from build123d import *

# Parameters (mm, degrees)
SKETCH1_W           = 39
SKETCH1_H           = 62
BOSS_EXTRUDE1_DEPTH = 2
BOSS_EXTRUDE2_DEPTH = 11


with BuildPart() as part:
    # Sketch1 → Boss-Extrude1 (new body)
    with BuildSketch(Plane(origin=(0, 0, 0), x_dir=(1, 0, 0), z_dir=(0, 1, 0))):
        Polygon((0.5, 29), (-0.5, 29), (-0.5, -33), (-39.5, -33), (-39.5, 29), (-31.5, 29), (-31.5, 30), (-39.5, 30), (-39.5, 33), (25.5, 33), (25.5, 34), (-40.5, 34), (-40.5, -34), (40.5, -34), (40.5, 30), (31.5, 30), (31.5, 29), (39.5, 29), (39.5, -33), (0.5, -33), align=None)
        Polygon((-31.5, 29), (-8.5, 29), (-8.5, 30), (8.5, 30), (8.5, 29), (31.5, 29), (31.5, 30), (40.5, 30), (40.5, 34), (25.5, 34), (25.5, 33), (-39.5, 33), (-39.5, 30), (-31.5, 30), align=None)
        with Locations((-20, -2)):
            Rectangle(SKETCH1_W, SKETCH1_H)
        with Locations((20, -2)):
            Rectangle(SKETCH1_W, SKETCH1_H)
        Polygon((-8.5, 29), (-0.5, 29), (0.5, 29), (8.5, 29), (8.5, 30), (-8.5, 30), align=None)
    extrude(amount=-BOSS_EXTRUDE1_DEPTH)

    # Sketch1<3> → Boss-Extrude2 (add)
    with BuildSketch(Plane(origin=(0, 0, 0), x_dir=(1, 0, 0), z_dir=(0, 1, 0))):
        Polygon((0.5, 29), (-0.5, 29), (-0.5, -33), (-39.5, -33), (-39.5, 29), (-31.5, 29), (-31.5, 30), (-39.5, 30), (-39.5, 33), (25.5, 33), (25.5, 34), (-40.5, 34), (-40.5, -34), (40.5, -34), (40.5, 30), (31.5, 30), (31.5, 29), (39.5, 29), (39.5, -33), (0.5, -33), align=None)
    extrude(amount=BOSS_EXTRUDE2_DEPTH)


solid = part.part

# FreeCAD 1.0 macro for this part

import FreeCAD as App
import Part
import Sketcher

V = App.Vector

doc = App.newDocument("Part")
body = doc.addObject("PartDesign::Body", "Body")

# Sketch on XZ plane
sketch1 = body.newObject("Sketcher::SketchObject", "Sketch")
sketch1.AttachmentSupport = (doc.getObject("XZ_Plane"), [""])
sketch1.MapMode = "FlatFace"
sketch1.addGeometry([
    Part.LineSegment(V(-40.5, -34, 0), V(-40.5, 34, 0)),
    Part.LineSegment(V(-40.5, 34, 0), V(40.5, 34, 0)),
    Part.LineSegment(V(40.5, 34, 0), V(40.5, -34, 0)),
    Part.LineSegment(V(40.5, -34, 0), V(-40.5, -34, 0)),
], False)
sketch1.addConstraint([
    Sketcher.Constraint("Coincident", 0, 2, 1, 1),
    Sketcher.Constraint("Coincident", 1, 2, 2, 1),
    Sketcher.Constraint("Coincident", 2, 2, 3, 1),
    Sketcher.Constraint("Coincident", 3, 2, 0, 1),
    Sketcher.Constraint("Vertical", 0),
    Sketcher.Constraint("Horizontal", 1),
    Sketcher.Constraint("Vertical", 2),
    Sketcher.Constraint("Horizontal", 3),
    Sketcher.Constraint("Symmetric", 0, 2, 2, 2, -1, 1),
    Sketcher.Constraint("DistanceX", 1, 1, 1, 2, 81.0),
    Sketcher.Constraint("DistanceY", 0, 1, 0, 2, 68.0),
])
pad1 = body.newObject("PartDesign::Pad", "Pad")
pad1.Profile = sketch1
pad1.Length = 2

# Sketch on XZ plane
sketch2 = body.newObject("Sketcher::SketchObject", "Sketch001")
sketch2.AttachmentSupport = (doc.getObject("XZ_Plane"), [""])
sketch2.MapMode = "FlatFace"
sketch2.addGeometry([
    Part.LineSegment(V(0.5, -29, 0), V(-0.5, -29, 0)),  # 0
    Part.LineSegment(V(-0.5, -29, 0), V(-0.5, 33, 0)),  # 1
    Part.LineSegment(V(-0.5, 33, 0), V(-39.5, 33, 0)),  # 2
    Part.LineSegment(V(-39.5, 33, 0), V(-39.5, -29, 0)),  # 3
    Part.LineSegment(V(-39.5, -29, 0), V(-31.5, -29, 0)),  # 4
    Part.LineSegment(V(-31.5, -29, 0), V(-31.5, -30, 0)),  # 5
    Part.LineSegment(V(-31.5, -30, 0), V(-39.5, -30, 0)),  # 6
    Part.LineSegment(V(-39.5, -30, 0), V(-39.5, -33, 0)),  # 7
    Part.LineSegment(V(-39.5, -33, 0), V(25.5, -33, 0)),  # 8
    Part.LineSegment(V(25.5, -33, 0), V(25.5, -34, 0)),  # 9
    Part.LineSegment(V(25.5, -34, 0), V(-40.5, -34, 0)),  # 10
    Part.LineSegment(V(-40.5, -34, 0), V(-40.5, 34, 0)),  # 11
    Part.LineSegment(V(-40.5, 34, 0), V(40.5, 34, 0)),  # 12
    Part.LineSegment(V(40.5, 34, 0), V(40.5, -30, 0)),  # 13
    Part.LineSegment(V(40.5, -30, 0), V(31.5, -30, 0)),  # 14
    Part.LineSegment(V(31.5, -30, 0), V(31.5, -29, 0)),  # 15
    Part.LineSegment(V(31.5, -29, 0), V(39.5, -29, 0)),  # 16
    Part.LineSegment(V(39.5, -29, 0), V(39.5, 33, 0)),  # 17
    Part.LineSegment(V(39.5, 33, 0), V(0.5, 33, 0)),  # 18
    Part.LineSegment(V(0.5, 33, 0), V(0.5, -29, 0)),  # 19
], False)
sketch2.addConstraint([
    Sketcher.Constraint("Coincident", 0, 2, 1, 1),
    Sketcher.Constraint("Coincident", 1, 2, 2, 1),
    Sketcher.Constraint("Coincident", 2, 2, 3, 1),
    Sketcher.Constraint("Coincident", 3, 2, 4, 1),
    Sketcher.Constraint("Coincident", 4, 2, 5, 1),
    Sketcher.Constraint("Coincident", 5, 2, 6, 1),
    Sketcher.Constraint("Coincident", 6, 2, 7, 1),
    Sketcher.Constraint("Coincident", 7, 2, 8, 1),
    Sketcher.Constraint("Coincident", 8, 2, 9, 1),
    Sketcher.Constraint("Coincident", 9, 2, 10, 1),
    Sketcher.Constraint("Coincident", 10, 2, 11, 1),
    Sketcher.Constraint("Coincident", 11, 2, 12, 1),
    Sketcher.Constraint("Coincident", 12, 2, 13, 1),
    Sketcher.Constraint("Coincident", 13, 2, 14, 1),
    Sketcher.Constraint("Coincident", 14, 2, 15, 1),
    Sketcher.Constraint("Coincident", 15, 2, 16, 1),
    Sketcher.Constraint("Coincident", 16, 2, 17, 1),
    Sketcher.Constraint("Coincident", 17, 2, 18, 1),
    Sketcher.Constraint("Coincident", 18, 2, 19, 1),
    Sketcher.Constraint("Coincident", 19, 2, 0, 1),
    Sketcher.Constraint("Horizontal", 0),
    Sketcher.Constraint("Vertical", 1),
    Sketcher.Constraint("Horizontal", 2),
    Sketcher.Constraint("Vertical", 3),
    Sketcher.Constraint("Horizontal", 4),
    Sketcher.Constraint("Vertical", 5),
    Sketcher.Constraint("Horizontal", 6),
    Sketcher.Constraint("Vertical", 7),
    Sketcher.Constraint("Horizontal", 8),
    Sketcher.Constraint("Vertical", 9),
    Sketcher.Constraint("Horizontal", 10),
    Sketcher.Constraint("Vertical", 11),
    Sketcher.Constraint("Horizontal", 12),
    Sketcher.Constraint("Vertical", 13),
    Sketcher.Constraint("Horizontal", 14),
    Sketcher.Constraint("Vertical", 15),
    Sketcher.Constraint("Horizontal", 16),
    Sketcher.Constraint("Vertical", 17),
    Sketcher.Constraint("Horizontal", 18),
    Sketcher.Constraint("Vertical", 19),
    Sketcher.Constraint("Symmetric", 10, 2, 12, 2, -1, 1),
    Sketcher.Constraint("Symmetric", 7, 2, 17, 2, -1, 1),
    Sketcher.Constraint("Symmetric", 5, 2, 14, 2, -2),
    Sketcher.Constraint("Symmetric", 3, 2, 16, 2, -2),
    Sketcher.Constraint("Symmetric", 1, 2, 18, 2, -2),
    Sketcher.Constraint("Horizontal", 0, 2, 3, 2),
    Sketcher.Constraint("Equal", 0, 5),
    Sketcher.Constraint("Equal", 5, 9),
    Sketcher.Constraint("DistanceX", 0, 2, 0, 1, 1.0),
    Sketcher.Constraint("DistanceX", 2, 2, 2, 1, 39.0),
    Sketcher.Constraint("DistanceX", 4, 1, 4, 2, 8.0),
    Sketcher.Constraint("DistanceX", 8, 1, 8, 2, 65.0),
    Sketcher.Constraint("DistanceX", 10, 2, 10, 1, 66.0),
    Sketcher.Constraint("DistanceY", 1, 1, 1, 2, 62.0),
    Sketcher.Constraint("DistanceY", 7, 2, 7, 1, 3.0),
])
pad2 = body.newObject("PartDesign::Pad", "Pad001")
pad2.Profile = sketch2
pad2.Length = 11
pad2.Reversed = True

doc.recompute()
